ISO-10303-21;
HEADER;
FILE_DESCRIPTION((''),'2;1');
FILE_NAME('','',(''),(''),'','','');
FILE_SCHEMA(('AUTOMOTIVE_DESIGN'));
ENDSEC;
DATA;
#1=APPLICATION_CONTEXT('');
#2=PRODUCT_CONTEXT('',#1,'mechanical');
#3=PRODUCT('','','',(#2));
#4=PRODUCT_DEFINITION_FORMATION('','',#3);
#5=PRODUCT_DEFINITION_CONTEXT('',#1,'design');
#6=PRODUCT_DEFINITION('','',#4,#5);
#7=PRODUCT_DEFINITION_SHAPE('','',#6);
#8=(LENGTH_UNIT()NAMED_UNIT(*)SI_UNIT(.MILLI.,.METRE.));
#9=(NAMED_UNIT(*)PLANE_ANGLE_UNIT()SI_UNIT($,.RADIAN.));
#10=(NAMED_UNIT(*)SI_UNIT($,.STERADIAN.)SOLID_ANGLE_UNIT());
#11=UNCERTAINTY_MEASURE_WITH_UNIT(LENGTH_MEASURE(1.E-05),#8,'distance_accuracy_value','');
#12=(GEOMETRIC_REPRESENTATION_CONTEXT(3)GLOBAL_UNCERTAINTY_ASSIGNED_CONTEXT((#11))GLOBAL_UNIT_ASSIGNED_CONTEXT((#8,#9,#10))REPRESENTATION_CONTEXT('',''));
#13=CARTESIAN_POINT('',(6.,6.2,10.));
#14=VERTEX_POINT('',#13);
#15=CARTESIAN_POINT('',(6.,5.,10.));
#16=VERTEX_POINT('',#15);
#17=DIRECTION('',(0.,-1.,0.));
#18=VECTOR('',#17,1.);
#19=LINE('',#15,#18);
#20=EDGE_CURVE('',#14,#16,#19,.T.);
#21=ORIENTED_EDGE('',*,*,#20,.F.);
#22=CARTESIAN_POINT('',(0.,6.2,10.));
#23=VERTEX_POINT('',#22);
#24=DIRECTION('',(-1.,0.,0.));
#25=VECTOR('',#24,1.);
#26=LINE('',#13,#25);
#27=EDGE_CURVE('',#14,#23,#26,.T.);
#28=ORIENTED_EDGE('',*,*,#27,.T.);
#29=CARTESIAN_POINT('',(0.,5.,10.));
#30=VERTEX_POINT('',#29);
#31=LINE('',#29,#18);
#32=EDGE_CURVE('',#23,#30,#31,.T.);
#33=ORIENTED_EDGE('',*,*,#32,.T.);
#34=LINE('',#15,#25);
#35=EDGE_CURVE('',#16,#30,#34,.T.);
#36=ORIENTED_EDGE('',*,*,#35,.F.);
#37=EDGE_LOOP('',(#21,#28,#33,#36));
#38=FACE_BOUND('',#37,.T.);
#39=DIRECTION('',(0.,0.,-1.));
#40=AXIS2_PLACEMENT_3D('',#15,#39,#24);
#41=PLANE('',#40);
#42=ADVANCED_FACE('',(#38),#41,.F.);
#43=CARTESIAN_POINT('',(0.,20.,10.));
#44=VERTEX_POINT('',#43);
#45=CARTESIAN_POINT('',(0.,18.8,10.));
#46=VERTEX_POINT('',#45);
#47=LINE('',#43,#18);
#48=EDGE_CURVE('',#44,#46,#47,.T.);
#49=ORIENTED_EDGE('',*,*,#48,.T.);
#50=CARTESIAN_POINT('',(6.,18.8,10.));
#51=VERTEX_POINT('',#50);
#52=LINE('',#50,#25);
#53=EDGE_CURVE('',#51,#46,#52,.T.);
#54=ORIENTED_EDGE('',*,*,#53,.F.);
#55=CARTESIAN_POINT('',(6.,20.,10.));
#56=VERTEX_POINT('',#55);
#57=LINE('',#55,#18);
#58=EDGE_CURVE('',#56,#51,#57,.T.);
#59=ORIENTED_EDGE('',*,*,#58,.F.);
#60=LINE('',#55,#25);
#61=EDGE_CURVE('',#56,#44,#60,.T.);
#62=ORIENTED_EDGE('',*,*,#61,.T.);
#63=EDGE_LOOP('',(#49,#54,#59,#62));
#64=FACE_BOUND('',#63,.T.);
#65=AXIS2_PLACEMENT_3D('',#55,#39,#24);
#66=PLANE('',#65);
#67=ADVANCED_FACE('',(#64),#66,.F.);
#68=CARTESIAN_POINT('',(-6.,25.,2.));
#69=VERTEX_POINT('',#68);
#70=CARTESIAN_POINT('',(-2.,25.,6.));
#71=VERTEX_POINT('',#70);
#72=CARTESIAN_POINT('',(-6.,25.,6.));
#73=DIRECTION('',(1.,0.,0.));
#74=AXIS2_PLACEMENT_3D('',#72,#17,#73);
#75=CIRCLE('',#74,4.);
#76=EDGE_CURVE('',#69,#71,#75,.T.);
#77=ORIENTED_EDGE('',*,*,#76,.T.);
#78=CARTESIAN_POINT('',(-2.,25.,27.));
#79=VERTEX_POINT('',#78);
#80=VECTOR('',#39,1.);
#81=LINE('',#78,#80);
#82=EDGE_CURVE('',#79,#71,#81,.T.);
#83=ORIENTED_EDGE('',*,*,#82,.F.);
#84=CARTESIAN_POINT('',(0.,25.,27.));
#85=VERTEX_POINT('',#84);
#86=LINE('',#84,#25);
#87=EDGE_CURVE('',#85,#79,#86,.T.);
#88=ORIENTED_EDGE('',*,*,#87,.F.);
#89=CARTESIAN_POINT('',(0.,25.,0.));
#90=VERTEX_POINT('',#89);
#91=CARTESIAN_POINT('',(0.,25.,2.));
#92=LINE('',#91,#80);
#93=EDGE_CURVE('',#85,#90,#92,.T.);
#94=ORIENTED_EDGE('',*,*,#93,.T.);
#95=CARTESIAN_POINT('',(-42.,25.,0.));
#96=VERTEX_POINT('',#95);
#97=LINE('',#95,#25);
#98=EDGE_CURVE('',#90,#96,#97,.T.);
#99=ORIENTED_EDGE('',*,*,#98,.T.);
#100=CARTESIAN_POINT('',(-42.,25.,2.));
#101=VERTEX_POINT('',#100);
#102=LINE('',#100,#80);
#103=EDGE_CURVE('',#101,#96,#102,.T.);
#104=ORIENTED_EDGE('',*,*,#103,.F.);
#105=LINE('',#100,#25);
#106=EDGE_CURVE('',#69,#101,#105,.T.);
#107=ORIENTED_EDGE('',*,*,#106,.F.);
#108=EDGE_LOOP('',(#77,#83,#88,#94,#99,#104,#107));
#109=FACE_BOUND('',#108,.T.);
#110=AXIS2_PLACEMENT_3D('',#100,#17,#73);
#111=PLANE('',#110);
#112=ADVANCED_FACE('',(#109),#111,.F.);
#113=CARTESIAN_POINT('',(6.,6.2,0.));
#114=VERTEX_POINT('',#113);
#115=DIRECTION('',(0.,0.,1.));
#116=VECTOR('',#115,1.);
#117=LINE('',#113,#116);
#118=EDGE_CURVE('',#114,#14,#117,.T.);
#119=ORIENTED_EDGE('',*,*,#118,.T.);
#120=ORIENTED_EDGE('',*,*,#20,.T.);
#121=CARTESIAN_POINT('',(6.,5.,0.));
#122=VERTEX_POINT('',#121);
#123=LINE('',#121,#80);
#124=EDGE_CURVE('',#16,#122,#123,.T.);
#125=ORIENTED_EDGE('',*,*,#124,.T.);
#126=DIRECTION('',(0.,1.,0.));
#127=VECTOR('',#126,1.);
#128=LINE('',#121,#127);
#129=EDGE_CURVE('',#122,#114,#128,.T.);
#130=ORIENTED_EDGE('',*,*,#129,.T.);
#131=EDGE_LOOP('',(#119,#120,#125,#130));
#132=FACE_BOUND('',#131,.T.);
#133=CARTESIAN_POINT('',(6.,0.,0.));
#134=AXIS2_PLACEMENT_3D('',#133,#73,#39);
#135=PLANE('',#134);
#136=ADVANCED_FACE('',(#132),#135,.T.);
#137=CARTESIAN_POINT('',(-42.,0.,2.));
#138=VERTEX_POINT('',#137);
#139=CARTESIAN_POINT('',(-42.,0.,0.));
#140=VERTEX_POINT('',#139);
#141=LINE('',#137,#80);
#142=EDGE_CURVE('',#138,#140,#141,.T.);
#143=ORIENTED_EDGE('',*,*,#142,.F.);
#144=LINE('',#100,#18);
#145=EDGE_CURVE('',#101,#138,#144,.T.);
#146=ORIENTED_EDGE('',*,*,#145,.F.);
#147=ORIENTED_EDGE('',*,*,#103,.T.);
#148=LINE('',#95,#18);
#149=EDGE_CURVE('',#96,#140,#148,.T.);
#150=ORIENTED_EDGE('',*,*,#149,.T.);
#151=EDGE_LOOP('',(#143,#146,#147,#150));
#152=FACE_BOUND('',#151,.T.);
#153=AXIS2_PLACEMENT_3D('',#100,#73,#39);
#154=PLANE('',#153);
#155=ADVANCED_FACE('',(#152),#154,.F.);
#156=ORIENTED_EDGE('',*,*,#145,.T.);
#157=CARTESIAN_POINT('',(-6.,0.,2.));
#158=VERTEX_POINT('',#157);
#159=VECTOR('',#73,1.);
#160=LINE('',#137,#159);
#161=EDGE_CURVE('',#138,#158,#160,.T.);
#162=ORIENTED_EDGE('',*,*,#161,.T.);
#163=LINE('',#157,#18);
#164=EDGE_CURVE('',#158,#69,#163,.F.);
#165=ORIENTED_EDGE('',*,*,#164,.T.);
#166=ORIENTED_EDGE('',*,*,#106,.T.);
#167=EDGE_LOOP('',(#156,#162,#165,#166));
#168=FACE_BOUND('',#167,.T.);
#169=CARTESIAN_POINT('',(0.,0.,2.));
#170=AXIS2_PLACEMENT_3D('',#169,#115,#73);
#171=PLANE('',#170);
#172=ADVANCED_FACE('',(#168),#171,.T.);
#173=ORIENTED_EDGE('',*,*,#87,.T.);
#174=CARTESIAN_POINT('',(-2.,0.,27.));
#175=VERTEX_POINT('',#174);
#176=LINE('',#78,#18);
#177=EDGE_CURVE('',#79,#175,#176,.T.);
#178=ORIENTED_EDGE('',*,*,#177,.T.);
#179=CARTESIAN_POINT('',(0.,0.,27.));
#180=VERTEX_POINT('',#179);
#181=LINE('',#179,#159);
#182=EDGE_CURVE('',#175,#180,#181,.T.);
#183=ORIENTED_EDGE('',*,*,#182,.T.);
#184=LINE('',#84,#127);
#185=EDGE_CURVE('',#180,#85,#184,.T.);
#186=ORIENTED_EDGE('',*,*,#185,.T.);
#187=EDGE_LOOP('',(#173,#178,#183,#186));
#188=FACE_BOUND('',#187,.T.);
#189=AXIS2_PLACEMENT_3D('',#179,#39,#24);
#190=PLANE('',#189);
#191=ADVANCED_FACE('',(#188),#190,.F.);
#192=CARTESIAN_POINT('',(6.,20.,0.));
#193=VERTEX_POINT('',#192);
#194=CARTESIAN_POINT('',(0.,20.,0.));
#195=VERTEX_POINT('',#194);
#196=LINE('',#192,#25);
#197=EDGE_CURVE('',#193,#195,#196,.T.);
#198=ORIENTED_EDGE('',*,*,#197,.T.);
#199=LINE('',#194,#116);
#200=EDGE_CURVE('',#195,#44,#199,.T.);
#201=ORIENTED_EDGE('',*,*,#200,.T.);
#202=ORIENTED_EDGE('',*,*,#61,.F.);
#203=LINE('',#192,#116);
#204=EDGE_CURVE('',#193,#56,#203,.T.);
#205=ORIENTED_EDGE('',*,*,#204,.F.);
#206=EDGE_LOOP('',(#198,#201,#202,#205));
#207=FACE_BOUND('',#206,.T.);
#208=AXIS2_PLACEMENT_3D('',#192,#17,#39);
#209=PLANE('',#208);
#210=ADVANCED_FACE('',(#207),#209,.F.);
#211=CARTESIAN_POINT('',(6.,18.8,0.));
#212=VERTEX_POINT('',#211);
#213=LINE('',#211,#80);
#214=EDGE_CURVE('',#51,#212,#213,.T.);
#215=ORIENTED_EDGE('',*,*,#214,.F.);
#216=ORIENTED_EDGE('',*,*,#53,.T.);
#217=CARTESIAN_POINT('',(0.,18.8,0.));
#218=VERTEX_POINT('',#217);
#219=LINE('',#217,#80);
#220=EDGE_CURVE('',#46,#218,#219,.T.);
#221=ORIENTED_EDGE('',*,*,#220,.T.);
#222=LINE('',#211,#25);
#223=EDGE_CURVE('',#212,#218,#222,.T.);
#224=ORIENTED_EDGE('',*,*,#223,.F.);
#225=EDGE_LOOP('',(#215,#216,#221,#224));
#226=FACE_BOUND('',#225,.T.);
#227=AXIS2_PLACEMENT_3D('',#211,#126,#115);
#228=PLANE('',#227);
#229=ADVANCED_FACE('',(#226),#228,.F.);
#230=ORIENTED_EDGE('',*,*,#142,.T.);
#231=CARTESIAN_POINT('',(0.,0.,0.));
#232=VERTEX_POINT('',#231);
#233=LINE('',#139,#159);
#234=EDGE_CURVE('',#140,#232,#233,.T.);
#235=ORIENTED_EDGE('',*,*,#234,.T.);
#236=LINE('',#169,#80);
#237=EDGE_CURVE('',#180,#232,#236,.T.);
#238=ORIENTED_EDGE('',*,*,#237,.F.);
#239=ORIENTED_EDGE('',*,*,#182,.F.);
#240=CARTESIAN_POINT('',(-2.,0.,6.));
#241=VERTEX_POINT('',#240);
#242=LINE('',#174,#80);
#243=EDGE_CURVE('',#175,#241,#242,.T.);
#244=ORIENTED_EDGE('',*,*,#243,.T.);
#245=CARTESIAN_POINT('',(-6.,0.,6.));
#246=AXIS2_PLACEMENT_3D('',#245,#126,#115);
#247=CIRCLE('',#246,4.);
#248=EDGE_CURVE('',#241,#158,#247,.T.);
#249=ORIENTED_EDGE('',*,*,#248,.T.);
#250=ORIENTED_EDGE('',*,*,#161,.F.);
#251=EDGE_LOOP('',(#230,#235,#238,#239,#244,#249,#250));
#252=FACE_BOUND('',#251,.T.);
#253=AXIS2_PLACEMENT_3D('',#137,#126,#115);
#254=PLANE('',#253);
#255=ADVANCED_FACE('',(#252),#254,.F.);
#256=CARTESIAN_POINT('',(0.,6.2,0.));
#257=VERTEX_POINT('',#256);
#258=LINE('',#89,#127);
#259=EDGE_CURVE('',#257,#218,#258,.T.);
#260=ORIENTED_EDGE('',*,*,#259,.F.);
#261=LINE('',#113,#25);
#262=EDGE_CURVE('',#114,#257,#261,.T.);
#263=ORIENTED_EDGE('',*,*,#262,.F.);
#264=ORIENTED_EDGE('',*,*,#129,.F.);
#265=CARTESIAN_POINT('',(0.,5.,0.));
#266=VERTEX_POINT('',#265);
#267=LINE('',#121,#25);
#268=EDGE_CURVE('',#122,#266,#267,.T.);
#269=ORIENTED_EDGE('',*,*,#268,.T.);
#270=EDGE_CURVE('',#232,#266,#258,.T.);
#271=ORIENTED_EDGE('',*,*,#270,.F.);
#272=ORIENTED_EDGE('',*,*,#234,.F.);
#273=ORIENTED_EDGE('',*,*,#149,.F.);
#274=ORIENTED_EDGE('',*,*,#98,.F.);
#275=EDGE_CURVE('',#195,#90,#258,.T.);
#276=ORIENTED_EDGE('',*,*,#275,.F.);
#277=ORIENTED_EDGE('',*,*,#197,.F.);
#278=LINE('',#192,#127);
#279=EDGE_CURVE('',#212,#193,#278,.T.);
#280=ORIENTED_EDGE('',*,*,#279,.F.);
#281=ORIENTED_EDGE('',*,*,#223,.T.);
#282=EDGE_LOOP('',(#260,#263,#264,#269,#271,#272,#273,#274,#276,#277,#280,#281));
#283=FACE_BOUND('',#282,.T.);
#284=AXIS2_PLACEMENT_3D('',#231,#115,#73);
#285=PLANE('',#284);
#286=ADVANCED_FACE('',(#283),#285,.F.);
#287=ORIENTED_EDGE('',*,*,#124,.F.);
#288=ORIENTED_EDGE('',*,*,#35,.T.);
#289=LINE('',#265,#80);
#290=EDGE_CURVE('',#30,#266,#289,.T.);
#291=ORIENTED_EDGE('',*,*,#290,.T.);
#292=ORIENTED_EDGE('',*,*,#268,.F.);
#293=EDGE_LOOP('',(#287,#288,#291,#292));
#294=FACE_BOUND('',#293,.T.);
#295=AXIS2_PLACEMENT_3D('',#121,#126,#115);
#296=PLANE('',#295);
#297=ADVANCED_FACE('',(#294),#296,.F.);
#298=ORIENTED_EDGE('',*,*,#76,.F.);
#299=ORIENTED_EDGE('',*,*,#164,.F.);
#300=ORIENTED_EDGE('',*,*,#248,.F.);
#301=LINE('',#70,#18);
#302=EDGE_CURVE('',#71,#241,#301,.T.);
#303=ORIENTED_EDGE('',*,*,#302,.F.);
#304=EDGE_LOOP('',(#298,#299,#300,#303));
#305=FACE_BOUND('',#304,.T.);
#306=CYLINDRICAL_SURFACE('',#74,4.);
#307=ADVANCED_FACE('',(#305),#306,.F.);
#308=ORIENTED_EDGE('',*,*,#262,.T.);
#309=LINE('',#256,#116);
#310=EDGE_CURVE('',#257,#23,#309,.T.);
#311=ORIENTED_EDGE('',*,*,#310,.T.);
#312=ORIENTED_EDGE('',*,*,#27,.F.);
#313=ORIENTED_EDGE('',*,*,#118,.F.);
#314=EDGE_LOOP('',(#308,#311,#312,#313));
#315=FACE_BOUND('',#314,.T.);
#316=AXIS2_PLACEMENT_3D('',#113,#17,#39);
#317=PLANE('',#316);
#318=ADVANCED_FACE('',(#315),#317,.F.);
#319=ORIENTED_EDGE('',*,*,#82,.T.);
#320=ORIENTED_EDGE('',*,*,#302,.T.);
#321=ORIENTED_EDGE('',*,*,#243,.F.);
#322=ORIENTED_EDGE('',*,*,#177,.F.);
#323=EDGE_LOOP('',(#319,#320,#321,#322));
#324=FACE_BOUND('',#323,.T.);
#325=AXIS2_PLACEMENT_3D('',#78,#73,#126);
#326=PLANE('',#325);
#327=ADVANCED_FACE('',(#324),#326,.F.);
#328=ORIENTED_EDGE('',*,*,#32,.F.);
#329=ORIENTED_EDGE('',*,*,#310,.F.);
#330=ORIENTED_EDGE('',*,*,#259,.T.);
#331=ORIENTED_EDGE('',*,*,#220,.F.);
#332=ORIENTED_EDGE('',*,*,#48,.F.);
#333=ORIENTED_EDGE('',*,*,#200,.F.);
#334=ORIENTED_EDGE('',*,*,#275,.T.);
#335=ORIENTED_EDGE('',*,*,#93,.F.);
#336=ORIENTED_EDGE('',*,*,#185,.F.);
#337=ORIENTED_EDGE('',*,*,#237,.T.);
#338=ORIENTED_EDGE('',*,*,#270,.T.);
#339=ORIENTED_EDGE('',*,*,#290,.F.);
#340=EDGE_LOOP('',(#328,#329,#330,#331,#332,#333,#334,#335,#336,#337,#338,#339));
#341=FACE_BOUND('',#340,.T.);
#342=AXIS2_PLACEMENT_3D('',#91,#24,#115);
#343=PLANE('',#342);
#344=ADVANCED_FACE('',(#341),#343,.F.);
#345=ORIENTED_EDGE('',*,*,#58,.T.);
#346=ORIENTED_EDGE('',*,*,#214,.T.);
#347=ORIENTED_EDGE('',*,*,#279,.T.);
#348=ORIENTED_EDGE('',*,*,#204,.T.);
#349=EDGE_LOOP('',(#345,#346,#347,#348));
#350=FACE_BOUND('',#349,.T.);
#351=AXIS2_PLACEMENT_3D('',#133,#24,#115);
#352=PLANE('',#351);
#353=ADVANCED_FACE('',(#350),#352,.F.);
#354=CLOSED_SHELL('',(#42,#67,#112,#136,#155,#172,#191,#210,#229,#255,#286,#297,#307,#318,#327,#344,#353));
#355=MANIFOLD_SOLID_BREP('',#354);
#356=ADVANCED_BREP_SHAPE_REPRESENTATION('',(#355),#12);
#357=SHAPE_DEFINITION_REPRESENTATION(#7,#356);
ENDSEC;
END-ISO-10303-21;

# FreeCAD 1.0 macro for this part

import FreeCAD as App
import Part
import Sketcher

V = App.Vector
Q = App.Units.Quantity


def edges_at(feature, points):
    """Names of the edges that pass closest to the given points."""
    edges = feature.Shape.Edges
    near = lambda p: min(range(len(edges)), key=lambda i: edges[i].distToShape(Part.Vertex(*p))[0])
    return sorted({f"Edge{near(p) + 1}" for p in points})


def add_polygon(sketch, points):
    """Adds a closed chain of lines whose ends are joined by coincident constraints."""
    first, n = sketch.GeometryCount, len(points)
    for a, b in zip(points, points[1:] + points[:1]):
        sketch.addGeometry(Part.LineSegment(App.Vector(*a, 0), App.Vector(*b, 0)), False)
    for i in range(n):
        sketch.addConstraint(Sketcher.Constraint("Coincident", first + i, 2, first + (i + 1) % n, 1))

doc = App.newDocument("Part")
body = doc.addObject("PartDesign::Body", "Body")

# Sketch on XY plane
sketch1 = body.newObject("Sketcher::SketchObject", "Sketch")
sketch1.AttachmentSupport = (doc.getObject("XY_Plane"), [""])
sketch1.MapMode = "FlatFace"
add_polygon(sketch1, [(-42, 25), (-42, 0), (0, 0), (0, 25)])  # lines 0-3
sketch1.addConstraint(Sketcher.Constraint("Vertical", 0))
sketch1.addConstraint(Sketcher.Constraint("Horizontal", 1))
sketch1.addConstraint(Sketcher.Constraint("Vertical", 2))
sketch1.addConstraint(Sketcher.Constraint("Horizontal", 3))
sketch1.addConstraint(Sketcher.Constraint("Coincident", 1, 2, -1, 1))
sketch1.addConstraint(Sketcher.Constraint("DistanceX", 1, 1, 1, 2, Q("42 mm")))
sketch1.addConstraint(Sketcher.Constraint("DistanceY", 0, 2, 0, 1, Q("25 mm")))
pad1 = body.newObject("PartDesign::Pad", "Pad")
pad1.Profile = sketch1
pad1.Length = 2

# Sketch on XY plane
sketch2 = body.newObject("Sketcher::SketchObject", "Sketch001")
sketch2.AttachmentSupport = (doc.getObject("XY_Plane"), [""])
sketch2.MapMode = "FlatFace"
sketch2.AttachmentOffset = App.Placement(V(0, 0, 2), App.Rotation())
add_polygon(sketch2, [(-2, 25), (-2, 0), (0, 0), (0, 25)])  # lines 0-3
sketch2.addConstraint(Sketcher.Constraint("Vertical", 0))
sketch2.addConstraint(Sketcher.Constraint("Horizontal", 1))
sketch2.addConstraint(Sketcher.Constraint("Vertical", 2))
sketch2.addConstraint(Sketcher.Constraint("Horizontal", 3))
sketch2.addConstraint(Sketcher.Constraint("Coincident", 1, 2, -1, 1))
sketch2.addConstraint(Sketcher.Constraint("DistanceX", 1, 1, 1, 2, Q("2 mm")))
sketch2.addConstraint(Sketcher.Constraint("DistanceY", 0, 2, 0, 1, Q("25 mm")))
pad2 = body.newObject("PartDesign::Pad", "Pad001")
pad2.Profile = sketch2
pad2.Length = 25

# Sketch on YZ plane
sketch3 = body.newObject("Sketcher::SketchObject", "Sketch002")
sketch3.AttachmentSupport = (doc.getObject("YZ_Plane"), [""])
sketch3.MapMode = "FlatFace"
add_polygon(sketch3, [(20, 10), (18.8, 10), (18.8, 0), (20, 0)])  # lines 0-3
add_polygon(sketch3, [(6.2, 10), (5, 10), (5, 0), (6.2, 0)])  # lines 4-7
sketch3.addConstraint(Sketcher.Constraint("Horizontal", 0))
sketch3.addConstraint(Sketcher.Constraint("Vertical", 1))
sketch3.addConstraint(Sketcher.Constraint("Horizontal", 2))
sketch3.addConstraint(Sketcher.Constraint("Vertical", 3))
sketch3.addConstraint(Sketcher.Constraint("Horizontal", 4))
sketch3.addConstraint(Sketcher.Constraint("Vertical", 5))
sketch3.addConstraint(Sketcher.Constraint("Horizontal", 6))
sketch3.addConstraint(Sketcher.Constraint("Vertical", 7))
sketch3.addConstraint(Sketcher.Constraint("PointOnObject", 1, 2, -1))
sketch3.addConstraint(Sketcher.Constraint("PointOnObject", 5, 2, -1))
sketch3.addConstraint(Sketcher.Constraint("Horizontal", 3, 2, 4, 2))
sketch3.addConstraint(Sketcher.Constraint("Equal", 2, 4))
sketch3.addConstraint(Sketcher.Constraint("DistanceY", 1, 2, 1, 1, Q("10 mm")))
sketch3.addConstraint(Sketcher.Constraint("DistanceX", 0, 2, 0, 1, Q("1.2 mm")))
sketch3.addConstraint(Sketcher.Constraint("DistanceX", -1, 1, 2, 2, Q("20 mm")))
sketch3.addConstraint(Sketcher.Constraint("DistanceX", -1, 1, 4, 2, Q("5 mm")))
pad3 = body.newObject("PartDesign::Pad", "Pad002")
pad3.Profile = sketch3
pad3.Length = 6
doc.recompute()

fillet = body.newObject("PartDesign::Fillet", "Fillet")
fillet.Base = (pad3, edges_at(pad3, [(-2, 12.5, 2)]))
fillet.Radius = 4

doc.recompute()
